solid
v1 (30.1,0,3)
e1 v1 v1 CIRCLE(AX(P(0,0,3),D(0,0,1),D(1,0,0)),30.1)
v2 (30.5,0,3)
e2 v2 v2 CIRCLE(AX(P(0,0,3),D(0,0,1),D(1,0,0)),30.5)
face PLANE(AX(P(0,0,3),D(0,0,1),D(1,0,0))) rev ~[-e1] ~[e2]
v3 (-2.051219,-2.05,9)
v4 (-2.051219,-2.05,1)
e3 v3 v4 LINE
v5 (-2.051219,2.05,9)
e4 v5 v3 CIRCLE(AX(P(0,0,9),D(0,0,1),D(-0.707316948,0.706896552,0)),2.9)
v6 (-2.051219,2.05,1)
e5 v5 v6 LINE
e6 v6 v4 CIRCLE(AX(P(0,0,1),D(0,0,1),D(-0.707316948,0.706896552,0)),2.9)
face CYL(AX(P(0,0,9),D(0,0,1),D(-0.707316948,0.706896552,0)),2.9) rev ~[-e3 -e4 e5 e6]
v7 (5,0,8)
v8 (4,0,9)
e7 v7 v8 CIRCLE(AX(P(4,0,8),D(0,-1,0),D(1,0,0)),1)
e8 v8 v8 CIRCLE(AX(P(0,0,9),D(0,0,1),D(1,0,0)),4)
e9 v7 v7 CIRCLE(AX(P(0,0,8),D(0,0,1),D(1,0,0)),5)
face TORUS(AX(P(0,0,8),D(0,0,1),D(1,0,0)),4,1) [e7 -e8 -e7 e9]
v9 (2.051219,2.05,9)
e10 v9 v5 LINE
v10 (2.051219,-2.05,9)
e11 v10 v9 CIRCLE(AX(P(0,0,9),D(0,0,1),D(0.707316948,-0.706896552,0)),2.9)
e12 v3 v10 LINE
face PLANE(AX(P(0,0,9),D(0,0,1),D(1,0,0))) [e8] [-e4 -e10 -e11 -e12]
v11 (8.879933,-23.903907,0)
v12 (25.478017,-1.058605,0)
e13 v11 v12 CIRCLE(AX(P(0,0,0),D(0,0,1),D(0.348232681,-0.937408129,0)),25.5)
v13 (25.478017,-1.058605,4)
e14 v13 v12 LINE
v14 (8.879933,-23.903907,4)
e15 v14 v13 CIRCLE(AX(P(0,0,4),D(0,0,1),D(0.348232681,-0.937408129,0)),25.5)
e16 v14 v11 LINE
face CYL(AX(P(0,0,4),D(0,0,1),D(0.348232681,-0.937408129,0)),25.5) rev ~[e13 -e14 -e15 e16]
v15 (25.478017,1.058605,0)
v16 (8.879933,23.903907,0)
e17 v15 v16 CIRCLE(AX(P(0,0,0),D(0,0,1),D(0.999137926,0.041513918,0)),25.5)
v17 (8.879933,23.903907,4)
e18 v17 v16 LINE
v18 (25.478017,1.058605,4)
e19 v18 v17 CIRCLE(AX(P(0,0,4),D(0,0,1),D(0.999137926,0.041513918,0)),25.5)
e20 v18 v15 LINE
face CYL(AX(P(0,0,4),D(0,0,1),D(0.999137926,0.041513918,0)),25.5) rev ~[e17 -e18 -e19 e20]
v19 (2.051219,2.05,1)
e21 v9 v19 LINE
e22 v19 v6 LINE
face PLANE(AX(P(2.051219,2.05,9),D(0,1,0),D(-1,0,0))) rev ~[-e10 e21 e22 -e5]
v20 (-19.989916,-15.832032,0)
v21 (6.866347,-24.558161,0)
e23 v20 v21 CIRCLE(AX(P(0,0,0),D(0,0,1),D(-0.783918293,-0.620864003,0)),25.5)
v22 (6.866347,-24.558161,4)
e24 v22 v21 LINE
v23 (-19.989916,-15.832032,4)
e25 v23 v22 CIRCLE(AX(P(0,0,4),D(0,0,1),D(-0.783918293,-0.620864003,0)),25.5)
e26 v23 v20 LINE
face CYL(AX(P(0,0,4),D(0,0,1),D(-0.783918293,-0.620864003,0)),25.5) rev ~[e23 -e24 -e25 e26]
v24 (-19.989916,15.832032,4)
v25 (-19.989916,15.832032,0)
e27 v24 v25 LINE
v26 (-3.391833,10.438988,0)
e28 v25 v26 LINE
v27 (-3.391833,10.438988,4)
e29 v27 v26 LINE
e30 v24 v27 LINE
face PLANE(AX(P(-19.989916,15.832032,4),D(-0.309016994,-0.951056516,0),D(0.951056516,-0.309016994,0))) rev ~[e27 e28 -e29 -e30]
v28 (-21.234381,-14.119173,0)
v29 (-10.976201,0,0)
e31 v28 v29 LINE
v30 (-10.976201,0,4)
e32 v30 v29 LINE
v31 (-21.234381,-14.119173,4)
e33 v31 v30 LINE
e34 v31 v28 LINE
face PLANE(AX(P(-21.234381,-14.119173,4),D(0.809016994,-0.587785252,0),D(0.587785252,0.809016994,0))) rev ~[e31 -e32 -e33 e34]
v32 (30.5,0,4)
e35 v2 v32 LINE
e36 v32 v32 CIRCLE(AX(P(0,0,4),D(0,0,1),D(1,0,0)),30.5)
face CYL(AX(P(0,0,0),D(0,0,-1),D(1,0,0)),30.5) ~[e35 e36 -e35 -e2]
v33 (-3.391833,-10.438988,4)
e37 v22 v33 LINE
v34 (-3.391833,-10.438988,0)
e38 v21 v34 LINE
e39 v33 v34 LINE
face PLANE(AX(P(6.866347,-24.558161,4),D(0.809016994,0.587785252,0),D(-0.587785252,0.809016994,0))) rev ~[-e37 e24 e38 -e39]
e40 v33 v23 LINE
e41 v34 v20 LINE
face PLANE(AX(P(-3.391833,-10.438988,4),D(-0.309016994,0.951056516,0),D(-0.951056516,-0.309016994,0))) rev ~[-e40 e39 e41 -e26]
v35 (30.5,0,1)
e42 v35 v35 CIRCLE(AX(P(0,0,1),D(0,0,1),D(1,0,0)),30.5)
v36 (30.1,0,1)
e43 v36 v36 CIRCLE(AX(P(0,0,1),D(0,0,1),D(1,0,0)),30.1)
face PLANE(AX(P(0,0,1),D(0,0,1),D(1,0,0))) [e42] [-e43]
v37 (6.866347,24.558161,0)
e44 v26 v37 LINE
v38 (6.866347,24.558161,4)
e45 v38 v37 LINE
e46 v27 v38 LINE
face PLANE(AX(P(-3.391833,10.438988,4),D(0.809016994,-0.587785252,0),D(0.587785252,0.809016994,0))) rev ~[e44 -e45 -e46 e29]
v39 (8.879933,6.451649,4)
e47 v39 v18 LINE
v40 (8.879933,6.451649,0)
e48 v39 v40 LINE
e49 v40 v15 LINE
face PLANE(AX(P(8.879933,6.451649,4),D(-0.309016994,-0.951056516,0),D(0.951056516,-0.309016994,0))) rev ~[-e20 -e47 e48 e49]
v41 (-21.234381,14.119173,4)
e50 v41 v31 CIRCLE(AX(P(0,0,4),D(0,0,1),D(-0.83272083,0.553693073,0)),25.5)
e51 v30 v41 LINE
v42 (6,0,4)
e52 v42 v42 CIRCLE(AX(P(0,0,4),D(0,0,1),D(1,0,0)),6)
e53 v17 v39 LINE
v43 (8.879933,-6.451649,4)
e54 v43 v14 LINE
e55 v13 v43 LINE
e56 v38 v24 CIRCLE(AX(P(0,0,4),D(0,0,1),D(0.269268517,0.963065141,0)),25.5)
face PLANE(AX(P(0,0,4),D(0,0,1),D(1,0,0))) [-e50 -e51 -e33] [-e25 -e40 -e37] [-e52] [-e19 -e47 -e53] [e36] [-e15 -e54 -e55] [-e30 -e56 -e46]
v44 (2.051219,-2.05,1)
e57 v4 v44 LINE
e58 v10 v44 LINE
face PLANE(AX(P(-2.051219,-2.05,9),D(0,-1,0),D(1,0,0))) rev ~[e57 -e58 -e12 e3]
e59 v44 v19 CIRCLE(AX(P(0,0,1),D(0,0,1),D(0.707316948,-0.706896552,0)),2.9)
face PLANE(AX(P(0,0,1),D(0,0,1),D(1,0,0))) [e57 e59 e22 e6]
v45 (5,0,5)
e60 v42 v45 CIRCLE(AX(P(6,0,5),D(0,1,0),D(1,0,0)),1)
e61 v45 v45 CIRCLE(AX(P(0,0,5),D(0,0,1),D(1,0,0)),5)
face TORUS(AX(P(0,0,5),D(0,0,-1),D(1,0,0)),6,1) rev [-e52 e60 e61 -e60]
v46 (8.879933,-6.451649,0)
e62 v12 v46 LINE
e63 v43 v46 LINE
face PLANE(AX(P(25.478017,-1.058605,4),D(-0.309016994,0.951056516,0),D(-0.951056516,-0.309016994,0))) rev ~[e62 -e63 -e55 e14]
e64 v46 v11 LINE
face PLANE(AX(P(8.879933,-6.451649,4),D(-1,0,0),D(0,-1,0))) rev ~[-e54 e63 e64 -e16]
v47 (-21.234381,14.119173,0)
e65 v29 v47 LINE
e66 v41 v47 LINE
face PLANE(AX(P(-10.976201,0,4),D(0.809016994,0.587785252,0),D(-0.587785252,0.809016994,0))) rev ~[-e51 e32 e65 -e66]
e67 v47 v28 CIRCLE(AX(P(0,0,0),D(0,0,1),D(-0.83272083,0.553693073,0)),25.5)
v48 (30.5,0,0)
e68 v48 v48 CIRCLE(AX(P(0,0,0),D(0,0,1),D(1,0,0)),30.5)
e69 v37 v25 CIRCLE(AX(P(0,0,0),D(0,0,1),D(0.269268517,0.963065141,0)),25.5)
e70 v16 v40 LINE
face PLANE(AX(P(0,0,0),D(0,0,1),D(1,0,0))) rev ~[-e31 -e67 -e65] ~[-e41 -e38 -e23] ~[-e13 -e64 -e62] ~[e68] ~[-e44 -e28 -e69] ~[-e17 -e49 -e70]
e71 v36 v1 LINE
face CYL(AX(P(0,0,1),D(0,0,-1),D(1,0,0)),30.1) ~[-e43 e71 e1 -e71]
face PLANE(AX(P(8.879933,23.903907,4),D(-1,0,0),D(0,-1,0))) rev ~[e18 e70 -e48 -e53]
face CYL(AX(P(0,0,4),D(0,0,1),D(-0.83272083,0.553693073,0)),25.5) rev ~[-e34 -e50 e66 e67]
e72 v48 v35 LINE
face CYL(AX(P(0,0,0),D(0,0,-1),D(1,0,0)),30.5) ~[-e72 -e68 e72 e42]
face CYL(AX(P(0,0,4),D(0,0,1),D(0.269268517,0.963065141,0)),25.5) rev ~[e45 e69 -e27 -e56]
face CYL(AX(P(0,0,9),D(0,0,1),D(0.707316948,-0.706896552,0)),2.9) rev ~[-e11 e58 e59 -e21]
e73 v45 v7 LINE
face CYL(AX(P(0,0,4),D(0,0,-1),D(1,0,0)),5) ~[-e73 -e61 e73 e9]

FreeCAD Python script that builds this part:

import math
import FreeCAD as App
import Part
import Sketcher

V = App.Vector
Q = App.Units.Quantity


def edges_at(feature, points):
    """Names of the edges that pass closest to the given points."""
    edges = feature.Shape.Edges
    near = lambda p: min(range(len(edges)), key=lambda i: edges[i].distToShape(Part.Vertex(*p))[0])
    return sorted({f"Edge{near(p) + 1}" for p in points})

doc = App.newDocument("Part")
body = doc.addObject("PartDesign::Body", "Body")

# Sketch on XY plane
sketch1 = body.newObject("Sketcher::SketchObject", "Sketch")
sketch1.AttachmentSupport = (doc.getObject("XY_Plane"), [""])
sketch1.MapMode = "FlatFace"
sketch1.addGeometry(Part.Circle(V(0, 0, 0), V(0, 0, 1), 30), False)
sketch1.addConstraint(Sketcher.Constraint("Coincident", 0, 3, -1, 1))
sketch1.addConstraint(Sketcher.Constraint("Diameter", 0, 61.0))
pad1 = body.newObject("PartDesign::Pad", "Pad")
pad1.Profile = sketch1
pad1.Length = 4

# Sketch on XY plane
sketch2 = body.newObject("Sketcher::SketchObject", "Sketch001")
sketch2.AttachmentSupport = (doc.getObject("XY_Plane"), [""])
sketch2.MapMode = "FlatFace"
sketch2.AttachmentOffset = App.Placement(V(0, 0, 1), App.Rotation())
sketch2.addGeometry(Part.Circle(V(0, 0, 0), V(0, 0, 1), 30), False)
sketch2.addGeometry(Part.Circle(V(0, 0, 0), V(0, 0, 1), 30), False)
sketch2.addConstraint(Sketcher.Constraint("Coincident", 0, 3, -1, 1))
sketch2.addConstraint(Sketcher.Constraint("Coincident", 1, 3, -1, 1))
sketch2.addConstraint(Sketcher.Constraint("Diameter", 0, 61.0))
sketch2.addConstraint(Sketcher.Constraint("Diameter", 1, 60.2))
pocket1 = body.newObject("PartDesign::Pocket", "Pocket")
pocket1.Profile = sketch2
pocket1.Length = 2
pocket1.Reversed = True

# Sketch on XY plane
sketch3 = body.newObject("Sketcher::SketchObject", "Sketch002")
sketch3.AttachmentSupport = (doc.getObject("XY_Plane"), [""])
sketch3.MapMode = "FlatFace"
sketch3.AttachmentOffset = App.Placement(V(0, 0, 4), App.Rotation())
sketch3.addGeometry(Part.Circle(V(0, 0, 0), V(0, 0, 1), 5), False)
sketch3.addConstraint(Sketcher.Constraint("Coincident", 0, 3, -1, 1))
sketch3.addConstraint(Sketcher.Constraint("Diameter", 0, 10.0))
pad2 = body.newObject("PartDesign::Pad", "Pad001")
pad2.Profile = sketch3
pad2.Length = 5

# Sketch on XY plane
sketch4 = body.newObject("Sketcher::SketchObject", "Sketch003")
sketch4.AttachmentSupport = (doc.getObject("XY_Plane"), [""])
sketch4.MapMode = "FlatFace"
sketch4.AttachmentOffset = App.Placement(V(0, 0, 9), App.Rotation())
sketch4.addGeometry(Part.LineSegment(V(2.1, 2, 0), V(-2.1, 2, 0)), False)
sketch4.addGeometry(Part.ArcOfCircle(Part.Circle(V(0, 0, 0), V(0, 0, 1), 2.9), math.radians(135), math.radians(225)), False)
sketch4.addGeometry(Part.LineSegment(V(-2.1, -2, 0), V(2.1, -2, 0)), False)
sketch4.addGeometry(Part.ArcOfCircle(Part.Circle(V(0, 0, 0), V(0, 0, 1), 2.9), math.radians(-45), math.radians(45)), False)
sketch4.addConstraint(Sketcher.Constraint("Coincident", 0, 2, 1, 1))
sketch4.addConstraint(Sketcher.Constraint("Coincident", 1, 2, 2, 1))
sketch4.addConstraint(Sketcher.Constraint("Coincident", 2, 2, 3, 1))
sketch4.addConstraint(Sketcher.Constraint("Coincident", 3, 2, 0, 1))
sketch4.addConstraint(Sketcher.Constraint("Horizontal", 0))
sketch4.addConstraint(Sketcher.Constraint("Horizontal", 2))
sketch4.addConstraint(Sketcher.Constraint("Coincident", 1, 3, -1, 1))
sketch4.addConstraint(Sketcher.Constraint("Coincident", 3, 3, -1, 1))
sketch4.addConstraint(Sketcher.Constraint("Equal", 1, 3))
sketch4.addConstraint(Sketcher.Constraint("Vertical", 0, 2, 1, 2))
sketch4.addConstraint(Sketcher.Constraint("Radius", 1, 2.9))
sketch4.addConstraint(Sketcher.Constraint("DistanceY", 1, 2, 0, 2, 4.1))
pocket2 = body.newObject("PartDesign::Pocket", "Pocket001")
pocket2.Profile = sketch4
pocket2.Length = 8

# Sketch on XY plane
sketch5 = body.newObject("Sketcher::SketchObject", "Sketch004")
sketch5.AttachmentSupport = (doc.getObject("XY_Plane"), [""])
sketch5.MapMode = "FlatFace"
sketch5.AttachmentOffset = App.Placement(V(0, 0, 4), App.Rotation())
sketch5.addGeometry(Part.LineSegment(V(-3, 10, 0), V(7, 25, 0)), False)
sketch5.addGeometry(Part.ArcOfCircle(Part.Circle(V(0, 0, 0), V(0, 0, 1), 26), math.radians(74), math.radians(142)), False)
sketch5.addGeometry(Part.LineSegment(V(-20, 16, 0), V(-3, 10, 0)), False)
sketch5.addGeometry(Part.LineSegment(V(9, 6, 0), V(25, 1, 0)), False)
sketch5.addGeometry(Part.ArcOfCircle(Part.Circle(V(0, 0, 0), V(0, 0, 1), 26), math.radians(2), math.radians(70)), False)
sketch5.addGeometry(Part.LineSegment(V(9, 24, 0), V(9, 6, 0)), False)
sketch5.addGeometry(Part.ArcOfCircle(Part.Circle(V(0, 0, 0), V(0, 0, 1), 26), math.radians(-70), math.radians(-2)), False)
sketch5.addGeometry(Part.LineSegment(V(25, -1, 0), V(9, -6, 0)), False)
sketch5.addGeometry(Part.LineSegment(V(9, -6, 0), V(9, -24, 0)), False)
sketch5.addGeometry(Part.ArcOfCircle(Part.Circle(V(0, 0, 0), V(0, 0, 1), 26), math.radians(-142), math.radians(-74)), False)
sketch5.addGeometry(Part.LineSegment(V(7, -25, 0), V(-3, -10, 0)), False)
sketch5.addGeometry(Part.LineSegment(V(-3, -10, 0), V(-20, -16, 0)), False)
sketch5.addGeometry(Part.LineSegment(V(-11, 0, 0), V(-21, 14, 0)), False)
sketch5.addGeometry(Part.ArcOfCircle(Part.Circle(V(0, 0, 0), V(0, 0, 1), 26), math.radians(146), math.radians(214)), False)
sketch5.addGeometry(Part.LineSegment(V(-21, -14, 0), V(-11, 0, 0)), False)
sketch5.addConstraint(Sketcher.Constraint("Coincident", 0, 2, 1, 1))
sketch5.addConstraint(Sketcher.Constraint("Coincident", 1, 2, 2, 1))
sketch5.addConstraint(Sketcher.Constraint("Coincident", 2, 2, 0, 1))
sketch5.addConstraint(Sketcher.Constraint("Coincident", 3, 2, 4, 1))
sketch5.addConstraint(Sketcher.Constraint("Coincident", 4, 2, 5, 1))
sketch5.addConstraint(Sketcher.Constraint("Coincident", 5, 2, 3, 1))
sketch5.addConstraint(Sketcher.Constraint("Coincident", 6, 2, 7, 1))
sketch5.addConstraint(Sketcher.Constraint("Coincident", 7, 2, 8, 1))
sketch5.addConstraint(Sketcher.Constraint("Coincident", 8, 2, 6, 1))
sketch5.addConstraint(Sketcher.Constraint("Coincident", 9, 2, 10, 1))
sketch5.addConstraint(Sketcher.Constraint("Coincident", 10, 2, 11, 1))
sketch5.addConstraint(Sketcher.Constraint("Coincident", 11, 2, 9, 1))
sketch5.addConstraint(Sketcher.Constraint("Coincident", 12, 2, 13, 1))
sketch5.addConstraint(Sketcher.Constraint("Coincident", 13, 2, 14, 1))
sketch5.addConstraint(Sketcher.Constraint("Coincident", 14, 2, 12, 1))
sketch5.addConstraint(Sketcher.Constraint("Vertical", 5))
sketch5.addConstraint(Sketcher.Constraint("Vertical", 8))
sketch5.addConstraint(Sketcher.Constraint("Coincident", 1, 3, -1, 1))
sketch5.addConstraint(Sketcher.Constraint("Coincident", 4, 3, -1, 1))
sketch5.addConstraint(Sketcher.Constraint("Coincident", 6, 3, -1, 1))
sketch5.addConstraint(Sketcher.Constraint("Coincident", 9, 3, -1, 1))
sketch5.addConstraint(Sketcher.Constraint("Coincident", 13, 3, -1, 1))
sketch5.addConstraint(Sketcher.Constraint("Equal", 1, 4))
sketch5.addConstraint(Sketcher.Constraint("Equal", 4, 6))
sketch5.addConstraint(Sketcher.Constraint("Equal", 6, 9))
sketch5.addConstraint(Sketcher.Constraint("Equal", 9, 13))
sketch5.addConstraint(Sketcher.Constraint("Symmetric", 5, 2, 7, 2, -1))
sketch5.addConstraint(Sketcher.Constraint("Symmetric", 2, 2, 10, 2, -1))
sketch5.addConstraint(Sketcher.Constraint("PointOnObject", 14, 2, -1))
sketch5.addConstraint(Sketcher.Constraint("Parallel", 2, 3))
sketch5.addConstraint(Sketcher.Constraint("Parallel", 7, 11))
sketch5.addConstraint(Sketcher.Constraint("Parallel", 10, 12))
sketch5.addConstraint(Sketcher.Constraint("Parallel", 0, 14))
sketch5.addConstraint(Sketcher.Constraint("Vertical", 3, 2, 6, 2))
sketch5.addConstraint(Sketcher.Constraint("Vertical", 0, 2, 9, 2))
sketch5.addConstraint(Sketcher.Constraint("Equal", 0, 2))
sketch5.addConstraint(Sketcher.Constraint("Equal", 2, 3))
sketch5.addConstraint(Sketcher.Constraint("Equal", 11, 12))
sketch5.addConstraint(Sketcher.Constraint("Radius", 1, 25.5))
sketch5.addConstraint(Sketcher.Constraint("Angle", 0, Q("54 deg")))
sketch5.addConstraint(Sketcher.Constraint("Angle", 2, Q("-18 deg")))
sketch5.addConstraint(Sketcher.Constraint("DistanceY", 5, 2, 5, 1, 17.452258))
sketch5.addConstraint(Sketcher.Constraint("DistanceX", 14, 2, -1, 1, 10.976201))
pocket3 = body.newObject("PartDesign::Pocket", "Pocket002")
pocket3.Profile = sketch5
pocket3.Length = 25
doc.recompute()

fillet = body.newObject("PartDesign::Fillet", "Fillet")
fillet.Base = (pocket3, edges_at(pocket3, [(-5, 0, 9), (-5, 0, 4)]))
fillet.Radius = 1

doc.recompute()
